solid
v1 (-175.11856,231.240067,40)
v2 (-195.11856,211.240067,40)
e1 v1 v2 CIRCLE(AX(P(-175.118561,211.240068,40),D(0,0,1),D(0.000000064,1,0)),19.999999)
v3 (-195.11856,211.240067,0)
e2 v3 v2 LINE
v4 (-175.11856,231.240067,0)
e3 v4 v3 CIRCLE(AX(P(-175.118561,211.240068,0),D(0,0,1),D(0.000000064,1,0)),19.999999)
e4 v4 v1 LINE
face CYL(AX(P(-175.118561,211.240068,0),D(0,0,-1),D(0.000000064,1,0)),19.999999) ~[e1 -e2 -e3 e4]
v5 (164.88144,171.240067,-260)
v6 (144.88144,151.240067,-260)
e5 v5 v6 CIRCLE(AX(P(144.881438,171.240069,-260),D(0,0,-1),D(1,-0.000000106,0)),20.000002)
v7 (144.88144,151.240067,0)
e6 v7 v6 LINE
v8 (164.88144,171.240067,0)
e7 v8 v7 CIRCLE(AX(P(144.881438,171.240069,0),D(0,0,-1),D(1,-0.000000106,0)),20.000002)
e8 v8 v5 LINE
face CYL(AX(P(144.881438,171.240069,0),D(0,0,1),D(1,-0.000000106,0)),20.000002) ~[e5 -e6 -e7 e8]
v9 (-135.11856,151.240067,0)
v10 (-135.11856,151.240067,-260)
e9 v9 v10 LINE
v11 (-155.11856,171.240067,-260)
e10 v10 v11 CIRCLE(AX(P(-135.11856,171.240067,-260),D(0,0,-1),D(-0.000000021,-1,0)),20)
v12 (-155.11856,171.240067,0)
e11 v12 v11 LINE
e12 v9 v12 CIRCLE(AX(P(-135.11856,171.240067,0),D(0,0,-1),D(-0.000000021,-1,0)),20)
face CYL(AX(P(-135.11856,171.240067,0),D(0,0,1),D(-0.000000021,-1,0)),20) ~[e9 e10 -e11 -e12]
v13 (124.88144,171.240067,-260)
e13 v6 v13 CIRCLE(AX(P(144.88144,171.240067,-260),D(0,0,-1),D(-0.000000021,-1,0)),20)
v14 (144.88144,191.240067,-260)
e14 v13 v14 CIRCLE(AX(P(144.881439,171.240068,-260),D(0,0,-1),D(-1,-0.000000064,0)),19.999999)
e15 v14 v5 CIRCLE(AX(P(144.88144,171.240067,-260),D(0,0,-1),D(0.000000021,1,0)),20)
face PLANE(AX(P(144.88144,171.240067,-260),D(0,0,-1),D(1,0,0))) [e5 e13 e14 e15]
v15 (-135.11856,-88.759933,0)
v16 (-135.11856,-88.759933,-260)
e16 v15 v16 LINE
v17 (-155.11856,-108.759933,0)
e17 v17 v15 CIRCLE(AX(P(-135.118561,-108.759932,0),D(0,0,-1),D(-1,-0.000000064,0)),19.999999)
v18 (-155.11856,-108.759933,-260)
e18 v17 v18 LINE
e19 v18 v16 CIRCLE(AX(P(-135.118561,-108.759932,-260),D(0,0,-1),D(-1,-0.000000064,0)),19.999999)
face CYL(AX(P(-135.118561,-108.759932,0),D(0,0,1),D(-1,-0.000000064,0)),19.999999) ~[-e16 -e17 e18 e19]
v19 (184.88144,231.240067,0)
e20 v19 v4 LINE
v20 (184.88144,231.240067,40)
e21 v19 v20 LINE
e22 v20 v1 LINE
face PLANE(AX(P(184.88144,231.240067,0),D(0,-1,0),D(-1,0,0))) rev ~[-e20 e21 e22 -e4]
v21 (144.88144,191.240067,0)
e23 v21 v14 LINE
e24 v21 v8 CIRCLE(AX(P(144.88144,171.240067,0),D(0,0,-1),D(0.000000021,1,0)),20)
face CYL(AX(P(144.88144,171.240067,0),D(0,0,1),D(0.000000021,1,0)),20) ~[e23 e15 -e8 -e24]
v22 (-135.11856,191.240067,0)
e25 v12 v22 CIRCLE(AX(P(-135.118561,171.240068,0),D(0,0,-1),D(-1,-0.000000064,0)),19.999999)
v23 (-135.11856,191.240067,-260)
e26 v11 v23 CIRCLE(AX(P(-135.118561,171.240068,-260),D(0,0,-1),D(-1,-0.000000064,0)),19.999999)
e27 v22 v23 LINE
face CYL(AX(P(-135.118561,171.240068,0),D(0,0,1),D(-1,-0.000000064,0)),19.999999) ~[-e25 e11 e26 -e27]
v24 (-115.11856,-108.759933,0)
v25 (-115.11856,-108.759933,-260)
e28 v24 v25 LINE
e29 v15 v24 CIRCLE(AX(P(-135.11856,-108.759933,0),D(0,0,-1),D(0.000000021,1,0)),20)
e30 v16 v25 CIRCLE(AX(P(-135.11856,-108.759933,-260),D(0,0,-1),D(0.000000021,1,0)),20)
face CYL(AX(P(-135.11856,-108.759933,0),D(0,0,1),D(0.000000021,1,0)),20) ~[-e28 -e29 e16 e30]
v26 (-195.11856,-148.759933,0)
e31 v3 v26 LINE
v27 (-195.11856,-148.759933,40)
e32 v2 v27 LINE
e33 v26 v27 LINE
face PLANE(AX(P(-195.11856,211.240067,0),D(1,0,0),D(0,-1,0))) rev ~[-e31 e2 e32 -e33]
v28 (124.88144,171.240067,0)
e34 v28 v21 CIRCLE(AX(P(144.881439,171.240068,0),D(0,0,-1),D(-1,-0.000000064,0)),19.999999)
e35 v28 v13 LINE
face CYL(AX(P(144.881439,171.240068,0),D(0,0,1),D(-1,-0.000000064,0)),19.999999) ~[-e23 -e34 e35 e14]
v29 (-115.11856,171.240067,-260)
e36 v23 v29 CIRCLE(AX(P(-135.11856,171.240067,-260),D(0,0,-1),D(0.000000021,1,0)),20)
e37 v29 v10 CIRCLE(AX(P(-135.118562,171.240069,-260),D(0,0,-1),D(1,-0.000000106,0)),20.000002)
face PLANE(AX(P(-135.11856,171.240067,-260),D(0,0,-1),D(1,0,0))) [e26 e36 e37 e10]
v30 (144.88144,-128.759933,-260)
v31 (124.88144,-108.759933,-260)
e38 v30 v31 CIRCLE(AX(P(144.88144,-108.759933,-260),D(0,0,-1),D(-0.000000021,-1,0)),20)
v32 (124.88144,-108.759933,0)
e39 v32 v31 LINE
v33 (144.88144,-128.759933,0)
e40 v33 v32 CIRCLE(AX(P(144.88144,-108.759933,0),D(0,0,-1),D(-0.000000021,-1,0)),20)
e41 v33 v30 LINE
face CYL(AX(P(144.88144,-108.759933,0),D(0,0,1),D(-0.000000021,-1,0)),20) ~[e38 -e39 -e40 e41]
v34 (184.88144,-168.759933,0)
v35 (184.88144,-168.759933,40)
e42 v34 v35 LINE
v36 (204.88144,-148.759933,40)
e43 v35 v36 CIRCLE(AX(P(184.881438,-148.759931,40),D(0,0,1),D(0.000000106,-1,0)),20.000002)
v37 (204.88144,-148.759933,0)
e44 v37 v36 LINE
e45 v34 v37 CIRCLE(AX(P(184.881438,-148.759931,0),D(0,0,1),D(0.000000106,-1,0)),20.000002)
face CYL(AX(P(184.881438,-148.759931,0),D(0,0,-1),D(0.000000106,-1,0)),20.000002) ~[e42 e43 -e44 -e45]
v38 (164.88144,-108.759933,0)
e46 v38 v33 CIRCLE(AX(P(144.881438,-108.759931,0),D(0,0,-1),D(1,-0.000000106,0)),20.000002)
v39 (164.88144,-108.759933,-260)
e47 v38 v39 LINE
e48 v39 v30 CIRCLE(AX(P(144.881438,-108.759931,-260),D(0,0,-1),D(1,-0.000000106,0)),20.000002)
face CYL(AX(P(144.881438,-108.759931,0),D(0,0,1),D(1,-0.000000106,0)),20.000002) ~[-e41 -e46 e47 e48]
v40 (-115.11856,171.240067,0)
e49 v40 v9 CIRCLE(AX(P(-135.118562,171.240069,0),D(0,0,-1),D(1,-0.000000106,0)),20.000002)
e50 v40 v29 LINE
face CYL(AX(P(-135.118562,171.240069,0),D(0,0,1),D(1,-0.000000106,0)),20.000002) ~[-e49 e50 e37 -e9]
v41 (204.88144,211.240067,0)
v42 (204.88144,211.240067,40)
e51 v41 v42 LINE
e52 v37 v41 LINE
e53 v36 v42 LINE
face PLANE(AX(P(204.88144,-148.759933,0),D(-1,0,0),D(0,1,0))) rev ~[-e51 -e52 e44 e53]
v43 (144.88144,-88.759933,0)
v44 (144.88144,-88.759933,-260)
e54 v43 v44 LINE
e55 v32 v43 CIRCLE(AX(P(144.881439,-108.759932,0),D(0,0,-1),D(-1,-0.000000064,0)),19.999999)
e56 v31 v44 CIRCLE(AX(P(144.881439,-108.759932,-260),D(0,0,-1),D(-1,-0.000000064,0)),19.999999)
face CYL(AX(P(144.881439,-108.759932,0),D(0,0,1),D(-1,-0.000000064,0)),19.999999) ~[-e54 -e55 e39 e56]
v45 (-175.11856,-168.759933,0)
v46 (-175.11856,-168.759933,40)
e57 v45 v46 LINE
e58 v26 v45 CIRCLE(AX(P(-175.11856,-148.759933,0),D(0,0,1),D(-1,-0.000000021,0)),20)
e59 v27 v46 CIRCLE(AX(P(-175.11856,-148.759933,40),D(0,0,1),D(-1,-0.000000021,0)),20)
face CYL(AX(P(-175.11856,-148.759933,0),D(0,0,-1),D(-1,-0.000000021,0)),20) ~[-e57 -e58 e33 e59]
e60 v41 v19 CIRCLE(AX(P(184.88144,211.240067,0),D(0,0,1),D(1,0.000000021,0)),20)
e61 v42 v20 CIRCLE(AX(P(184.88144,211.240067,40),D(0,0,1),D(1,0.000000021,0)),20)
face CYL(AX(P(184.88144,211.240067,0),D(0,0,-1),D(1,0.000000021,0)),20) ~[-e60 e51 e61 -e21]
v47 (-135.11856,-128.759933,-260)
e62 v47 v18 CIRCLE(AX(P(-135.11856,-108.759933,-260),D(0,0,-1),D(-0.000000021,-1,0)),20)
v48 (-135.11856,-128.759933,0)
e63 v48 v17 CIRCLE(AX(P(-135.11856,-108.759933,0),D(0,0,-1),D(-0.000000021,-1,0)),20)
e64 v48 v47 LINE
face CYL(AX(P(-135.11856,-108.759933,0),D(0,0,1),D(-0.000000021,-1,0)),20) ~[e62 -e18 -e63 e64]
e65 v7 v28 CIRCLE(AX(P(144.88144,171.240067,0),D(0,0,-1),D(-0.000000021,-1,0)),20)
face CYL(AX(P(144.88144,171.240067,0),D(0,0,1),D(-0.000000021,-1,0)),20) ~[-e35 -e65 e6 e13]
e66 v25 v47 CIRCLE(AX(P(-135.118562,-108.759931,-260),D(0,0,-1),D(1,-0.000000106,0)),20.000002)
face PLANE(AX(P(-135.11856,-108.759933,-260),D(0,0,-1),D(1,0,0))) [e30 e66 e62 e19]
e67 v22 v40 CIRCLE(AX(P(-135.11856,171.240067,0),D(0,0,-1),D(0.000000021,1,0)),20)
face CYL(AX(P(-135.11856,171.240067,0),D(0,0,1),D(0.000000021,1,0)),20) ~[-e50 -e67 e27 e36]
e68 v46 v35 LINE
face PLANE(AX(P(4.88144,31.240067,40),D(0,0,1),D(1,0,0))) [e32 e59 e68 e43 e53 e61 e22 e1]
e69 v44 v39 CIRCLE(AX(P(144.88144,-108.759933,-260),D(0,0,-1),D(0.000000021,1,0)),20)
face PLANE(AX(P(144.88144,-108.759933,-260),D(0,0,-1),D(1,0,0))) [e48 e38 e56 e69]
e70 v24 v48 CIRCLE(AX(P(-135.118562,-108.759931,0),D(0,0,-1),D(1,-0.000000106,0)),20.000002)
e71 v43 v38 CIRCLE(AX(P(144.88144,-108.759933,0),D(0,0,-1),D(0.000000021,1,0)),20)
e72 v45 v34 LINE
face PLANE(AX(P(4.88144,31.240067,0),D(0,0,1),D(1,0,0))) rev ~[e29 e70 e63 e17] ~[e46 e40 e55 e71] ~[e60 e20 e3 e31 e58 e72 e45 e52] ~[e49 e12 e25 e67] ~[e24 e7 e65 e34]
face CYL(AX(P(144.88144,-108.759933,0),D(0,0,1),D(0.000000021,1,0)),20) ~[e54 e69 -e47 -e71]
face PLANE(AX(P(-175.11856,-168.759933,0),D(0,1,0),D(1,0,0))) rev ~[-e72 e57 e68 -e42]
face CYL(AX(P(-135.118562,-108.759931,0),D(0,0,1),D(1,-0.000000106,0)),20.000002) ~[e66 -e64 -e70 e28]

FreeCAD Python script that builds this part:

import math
import FreeCAD as App
import Part
import Sketcher

doc = App.newDocument("Part")
body = doc.addObject("PartDesign::Body", "Body")

# Sketch on XY plane
sketch1 = body.newObject("Sketcher::SketchObject", "Sketch")
sketch1.AttachmentSupport = (doc.getObject("XY_Plane"), [""])
sketch1.MapMode = "FlatFace"
sketch1.addGeometry(Part.LineSegment(App.Vector(184.88144, 231.240067, 0), App.Vector(-175.11856, 231.240067, 0)), False)
sketch1.addGeometry(Part.ArcOfCircle(Part.Circle(App.Vector(-175.118561, 211.240068, 0), App.Vector(0, 0, 1), 19.999999), math.radians(89.999996), math.radians(180.000004)), False)
sketch1.addGeometry(Part.LineSegment(App.Vector(-195.11856, 211.240067, 0), App.Vector(-195.11856, -148.759933, 0)), False)
sketch1.addGeometry(Part.ArcOfCircle(Part.Circle(App.Vector(-175.11856, -148.759933, 0), App.Vector(0, 0, 1), 20), math.radians(-179.999999), math.radians(-90.000001)), False)
sketch1.addGeometry(Part.LineSegment(App.Vector(-175.11856, -168.759933, 0), App.Vector(184.88144, -168.759933, 0)), False)
sketch1.addGeometry(Part.ArcOfCircle(Part.Circle(App.Vector(184.881438, -148.759931, 0), App.Vector(0, 0, 1), 20.000002), math.radians(-89.999994), math.radians(-0.000006)), False)
sketch1.addGeometry(Part.LineSegment(App.Vector(204.88144, -148.759933, 0), App.Vector(204.88144, 211.240067, 0)), False)
sketch1.addGeometry(Part.ArcOfCircle(Part.Circle(App.Vector(184.88144, 211.240067, 0), App.Vector(0, 0, 1), 20), math.radians(0.000001), math.radians(89.999999)), False)
sketch1.addConstraint(Sketcher.Constraint("Tangent", 0, 2, 1, 1))
sketch1.addConstraint(Sketcher.Constraint("Tangent", 1, 2, 2, 1))
sketch1.addConstraint(Sketcher.Constraint("Tangent", 2, 2, 3, 1))
sketch1.addConstraint(Sketcher.Constraint("Tangent", 3, 2, 4, 1))
sketch1.addConstraint(Sketcher.Constraint("Tangent", 4, 2, 5, 1))
sketch1.addConstraint(Sketcher.Constraint("Tangent", 5, 2, 6, 1))
sketch1.addConstraint(Sketcher.Constraint("Tangent", 6, 2, 7, 1))
sketch1.addConstraint(Sketcher.Constraint("Tangent", 7, 2, 0, 1))
sketch1.addConstraint(Sketcher.Constraint("Horizontal", 0))
sketch1.addConstraint(Sketcher.Constraint("Vertical", 2))
sketch1.addConstraint(Sketcher.Constraint("Horizontal", 4))
sketch1.addConstraint(Sketcher.Constraint("Vertical", 6))
sketch1.addConstraint(Sketcher.Constraint("Equal", 1, 3))
sketch1.addConstraint(Sketcher.Constraint("Equal", 3, 5))
sketch1.addConstraint(Sketcher.Constraint("Equal", 5, 7))
sketch1.addConstraint(Sketcher.Constraint("Equal", 4, 2))
sketch1.addConstraint(Sketcher.Constraint("Radius", 1, 19.999999))
sketch1.addConstraint(Sketcher.Constraint("DistanceX", 0, 2, 0, 1, 360.0))
sketch1.addConstraint(Sketcher.Constraint("DistanceX", 1, 3, -1, 1, 175.118561))
sketch1.addConstraint(Sketcher.Constraint("DistanceY", -1, 1, 1, 3, 211.240068))
pad1 = body.newObject("PartDesign::Pad", "Pad")
pad1.Profile = sketch1
pad1.Length = 40

# Sketch on XY plane
sketch2 = body.newObject("Sketcher::SketchObject", "Sketch001")
sketch2.AttachmentSupport = (doc.getObject("XY_Plane"), [""])
sketch2.MapMode = "FlatFace"
sketch2.addGeometry(Part.ArcOfCircle(Part.Circle(App.Vector(-135.11856, 171.240067, 0), App.Vector(0, 0, 1), 20), math.radians(0.000001), math.radians(89.999999)), False)
sketch2.addGeometry(Part.ArcOfCircle(Part.Circle(App.Vector(-135.118562, 171.240069, 0), App.Vector(0, 0, 1), 20.000002), math.radians(-89.999994), math.radians(-0.000006)), False)
sketch2.addGeometry(Part.ArcOfCircle(Part.Circle(App.Vector(-135.11856, 171.240067, 0), App.Vector(0, 0, 1), 20), math.radians(-179.999999), math.radians(-90.000001)), False)
sketch2.addGeometry(Part.ArcOfCircle(Part.Circle(App.Vector(-135.118561, 171.240068, 0), App.Vector(0, 0, 1), 19.999999), math.radians(89.999996), math.radians(180.000004)), False)
sketch2.addGeometry(Part.ArcOfCircle(Part.Circle(App.Vector(-135.11856, -108.759933, 0), App.Vector(0, 0, 1), 20), math.radians(0.000001), math.radians(89.999999)), False)
sketch2.addGeometry(Part.ArcOfCircle(Part.Circle(App.Vector(-135.118562, -108.759931, 0), App.Vector(0, 0, 1), 20.000002), math.radians(-89.999994), math.radians(-0.000006)), False)
sketch2.addGeometry(Part.ArcOfCircle(Part.Circle(App.Vector(-135.11856, -108.759933, 0), App.Vector(0, 0, 1), 20), math.radians(-179.999999), math.radians(-90.000001)), False)
sketch2.addGeometry(Part.ArcOfCircle(Part.Circle(App.Vector(-135.118561, -108.759932, 0), App.Vector(0, 0, 1), 19.999999), math.radians(89.999996), math.radians(180.000004)), False)
sketch2.addGeometry(Part.ArcOfCircle(Part.Circle(App.Vector(144.88144, -108.759933, 0), App.Vector(0, 0, 1), 20), math.radians(-179.999999), math.radians(-90.000001)), False)
sketch2.addGeometry(Part.ArcOfCircle(Part.Circle(App.Vector(144.881439, -108.759932, 0), App.Vector(0, 0, 1), 19.999999), math.radians(89.999996), math.radians(180.000004)), False)
sketch2.addGeometry(Part.ArcOfCircle(Part.Circle(App.Vector(144.88144, -108.759933, 0), App.Vector(0, 0, 1), 20), math.radians(0.000001), math.radians(89.999999)), False)
sketch2.addGeometry(Part.ArcOfCircle(Part.Circle(App.Vector(144.881438, -108.759931, 0), App.Vector(0, 0, 1), 20.000002), math.radians(-89.999994), math.radians(-0.000006)), False)
sketch2.addGeometry(Part.ArcOfCircle(Part.Circle(App.Vector(144.881438, 171.240069, 0), App.Vector(0, 0, 1), 20.000002), math.radians(-89.999994), math.radians(-0.000006)), False)
sketch2.addGeometry(Part.ArcOfCircle(Part.Circle(App.Vector(144.88144, 171.240067, 0), App.Vector(0, 0, 1), 20), math.radians(-179.999999), math.radians(-90.000001)), False)
sketch2.addGeometry(Part.ArcOfCircle(Part.Circle(App.Vector(144.881439, 171.240068, 0), App.Vector(0, 0, 1), 19.999999), math.radians(89.999996), math.radians(180.000004)), False)
sketch2.addGeometry(Part.ArcOfCircle(Part.Circle(App.Vector(144.88144, 171.240067, 0), App.Vector(0, 0, 1), 20), math.radians(0.000001), math.radians(89.999999)), False)
sketch2.addConstraint(Sketcher.Constraint("Tangent", 0, 1, 1, 2))
sketch2.addConstraint(Sketcher.Constraint("Tangent", 1, 1, 2, 2))
sketch2.addConstraint(Sketcher.Constraint("Tangent", 2, 1, 3, 2))
sketch2.addConstraint(Sketcher.Constraint("Tangent", 3, 1, 0, 2))
sketch2.addConstraint(Sketcher.Constraint("Tangent", 4, 1, 5, 2))
sketch2.addConstraint(Sketcher.Constraint("Tangent", 5, 1, 6, 2))
sketch2.addConstraint(Sketcher.Constraint("Tangent", 6, 1, 7, 2))
sketch2.addConstraint(Sketcher.Constraint("Tangent", 7, 1, 4, 2))
sketch2.addConstraint(Sketcher.Constraint("Tangent", 8, 1, 9, 2))
sketch2.addConstraint(Sketcher.Constraint("Tangent", 9, 1, 10, 2))
sketch2.addConstraint(Sketcher.Constraint("Tangent", 10, 1, 11, 2))
sketch2.addConstraint(Sketcher.Constraint("Tangent", 11, 1, 8, 2))
sketch2.addConstraint(Sketcher.Constraint("Tangent", 12, 1, 13, 2))
sketch2.addConstraint(Sketcher.Constraint("Tangent", 13, 1, 14, 2))
sketch2.addConstraint(Sketcher.Constraint("Tangent", 14, 1, 15, 2))
sketch2.addConstraint(Sketcher.Constraint("Tangent", 15, 1, 12, 2))
sketch2.addConstraint(Sketcher.Constraint("Equal", 0, 1))
sketch2.addConstraint(Sketcher.Constraint("Equal", 3, 4))
sketch2.addConstraint(Sketcher.Constraint("Equal", 4, 5))
sketch2.addConstraint(Sketcher.Constraint("Equal", 7, 8))
sketch2.addConstraint(Sketcher.Constraint("Equal", 8, 9))
sketch2.addConstraint(Sketcher.Constraint("Equal", 11, 12))
sketch2.addConstraint(Sketcher.Constraint("Equal", 12, 13))
sketch2.addConstraint(Sketcher.Constraint("Horizontal", 7, 3, 8, 3))
sketch2.addConstraint(Sketcher.Constraint("Horizontal", 3, 3, 12, 3))
sketch2.addConstraint(Sketcher.Constraint("Horizontal", 15, 3, 0, 1))
sketch2.addConstraint(Sketcher.Constraint("Horizontal", 0, 1, 2, 1))
sketch2.addConstraint(Sketcher.Constraint("Horizontal", 10, 3, 4, 1))
sketch2.addConstraint(Sketcher.Constraint("Horizontal", 4, 1, 6, 1))
sketch2.addConstraint(Sketcher.Constraint("Horizontal", 6, 1, 8, 1))
sketch2.addConstraint(Sketcher.Constraint("Horizontal", 8, 1, 10, 1))
sketch2.addConstraint(Sketcher.Constraint("Horizontal", 2, 1, 13, 1))
sketch2.addConstraint(Sketcher.Constraint("Horizontal", 13, 1, 15, 1))
sketch2.addConstraint(Sketcher.Constraint("Vertical", 3, 3, 4, 3))
sketch2.addConstraint(Sketcher.Constraint("Vertical", 11, 3, 12, 3))
sketch2.addConstraint(Sketcher.Constraint("Vertical", 7, 3, 1, 1))
sketch2.addConstraint(Sketcher.Constraint("Vertical", 1, 1, 3, 1))
sketch2.addConstraint(Sketcher.Constraint("Vertical", 3, 1, 5, 1))
sketch2.addConstraint(Sketcher.Constraint("Vertical", 5, 1, 7, 1))
sketch2.addConstraint(Sketcher.Constraint("Vertical", 15, 3, 9, 1))
sketch2.addConstraint(Sketcher.Constraint("Vertical", 9, 1, 11, 1))
sketch2.addConstraint(Sketcher.Constraint("Vertical", 11, 1, 12, 1))
sketch2.addConstraint(Sketcher.Constraint("Vertical", 12, 1, 14, 1))
sketch2.addConstraint(Sketcher.Constraint("Radius", 0, 20.0))
sketch2.addConstraint(Sketcher.Constraint("DistanceY", 4, 3, 0, 3, 280.0))
sketch2.addConstraint(Sketcher.Constraint("DistanceX", 6, 3, 8, 3, 280.0))
sketch2.addConstraint(Sketcher.Constraint("DistanceX", 0, 3, -1, 1, 135.11856))
sketch2.addConstraint(Sketcher.Constraint("DistanceY", -1, 1, 1, 3, 171.240069))
pad2 = body.newObject("PartDesign::Pad", "Pad001")
pad2.Profile = sketch2
pad2.Length = 260
pad2.Reversed = True

doc.recompute()
